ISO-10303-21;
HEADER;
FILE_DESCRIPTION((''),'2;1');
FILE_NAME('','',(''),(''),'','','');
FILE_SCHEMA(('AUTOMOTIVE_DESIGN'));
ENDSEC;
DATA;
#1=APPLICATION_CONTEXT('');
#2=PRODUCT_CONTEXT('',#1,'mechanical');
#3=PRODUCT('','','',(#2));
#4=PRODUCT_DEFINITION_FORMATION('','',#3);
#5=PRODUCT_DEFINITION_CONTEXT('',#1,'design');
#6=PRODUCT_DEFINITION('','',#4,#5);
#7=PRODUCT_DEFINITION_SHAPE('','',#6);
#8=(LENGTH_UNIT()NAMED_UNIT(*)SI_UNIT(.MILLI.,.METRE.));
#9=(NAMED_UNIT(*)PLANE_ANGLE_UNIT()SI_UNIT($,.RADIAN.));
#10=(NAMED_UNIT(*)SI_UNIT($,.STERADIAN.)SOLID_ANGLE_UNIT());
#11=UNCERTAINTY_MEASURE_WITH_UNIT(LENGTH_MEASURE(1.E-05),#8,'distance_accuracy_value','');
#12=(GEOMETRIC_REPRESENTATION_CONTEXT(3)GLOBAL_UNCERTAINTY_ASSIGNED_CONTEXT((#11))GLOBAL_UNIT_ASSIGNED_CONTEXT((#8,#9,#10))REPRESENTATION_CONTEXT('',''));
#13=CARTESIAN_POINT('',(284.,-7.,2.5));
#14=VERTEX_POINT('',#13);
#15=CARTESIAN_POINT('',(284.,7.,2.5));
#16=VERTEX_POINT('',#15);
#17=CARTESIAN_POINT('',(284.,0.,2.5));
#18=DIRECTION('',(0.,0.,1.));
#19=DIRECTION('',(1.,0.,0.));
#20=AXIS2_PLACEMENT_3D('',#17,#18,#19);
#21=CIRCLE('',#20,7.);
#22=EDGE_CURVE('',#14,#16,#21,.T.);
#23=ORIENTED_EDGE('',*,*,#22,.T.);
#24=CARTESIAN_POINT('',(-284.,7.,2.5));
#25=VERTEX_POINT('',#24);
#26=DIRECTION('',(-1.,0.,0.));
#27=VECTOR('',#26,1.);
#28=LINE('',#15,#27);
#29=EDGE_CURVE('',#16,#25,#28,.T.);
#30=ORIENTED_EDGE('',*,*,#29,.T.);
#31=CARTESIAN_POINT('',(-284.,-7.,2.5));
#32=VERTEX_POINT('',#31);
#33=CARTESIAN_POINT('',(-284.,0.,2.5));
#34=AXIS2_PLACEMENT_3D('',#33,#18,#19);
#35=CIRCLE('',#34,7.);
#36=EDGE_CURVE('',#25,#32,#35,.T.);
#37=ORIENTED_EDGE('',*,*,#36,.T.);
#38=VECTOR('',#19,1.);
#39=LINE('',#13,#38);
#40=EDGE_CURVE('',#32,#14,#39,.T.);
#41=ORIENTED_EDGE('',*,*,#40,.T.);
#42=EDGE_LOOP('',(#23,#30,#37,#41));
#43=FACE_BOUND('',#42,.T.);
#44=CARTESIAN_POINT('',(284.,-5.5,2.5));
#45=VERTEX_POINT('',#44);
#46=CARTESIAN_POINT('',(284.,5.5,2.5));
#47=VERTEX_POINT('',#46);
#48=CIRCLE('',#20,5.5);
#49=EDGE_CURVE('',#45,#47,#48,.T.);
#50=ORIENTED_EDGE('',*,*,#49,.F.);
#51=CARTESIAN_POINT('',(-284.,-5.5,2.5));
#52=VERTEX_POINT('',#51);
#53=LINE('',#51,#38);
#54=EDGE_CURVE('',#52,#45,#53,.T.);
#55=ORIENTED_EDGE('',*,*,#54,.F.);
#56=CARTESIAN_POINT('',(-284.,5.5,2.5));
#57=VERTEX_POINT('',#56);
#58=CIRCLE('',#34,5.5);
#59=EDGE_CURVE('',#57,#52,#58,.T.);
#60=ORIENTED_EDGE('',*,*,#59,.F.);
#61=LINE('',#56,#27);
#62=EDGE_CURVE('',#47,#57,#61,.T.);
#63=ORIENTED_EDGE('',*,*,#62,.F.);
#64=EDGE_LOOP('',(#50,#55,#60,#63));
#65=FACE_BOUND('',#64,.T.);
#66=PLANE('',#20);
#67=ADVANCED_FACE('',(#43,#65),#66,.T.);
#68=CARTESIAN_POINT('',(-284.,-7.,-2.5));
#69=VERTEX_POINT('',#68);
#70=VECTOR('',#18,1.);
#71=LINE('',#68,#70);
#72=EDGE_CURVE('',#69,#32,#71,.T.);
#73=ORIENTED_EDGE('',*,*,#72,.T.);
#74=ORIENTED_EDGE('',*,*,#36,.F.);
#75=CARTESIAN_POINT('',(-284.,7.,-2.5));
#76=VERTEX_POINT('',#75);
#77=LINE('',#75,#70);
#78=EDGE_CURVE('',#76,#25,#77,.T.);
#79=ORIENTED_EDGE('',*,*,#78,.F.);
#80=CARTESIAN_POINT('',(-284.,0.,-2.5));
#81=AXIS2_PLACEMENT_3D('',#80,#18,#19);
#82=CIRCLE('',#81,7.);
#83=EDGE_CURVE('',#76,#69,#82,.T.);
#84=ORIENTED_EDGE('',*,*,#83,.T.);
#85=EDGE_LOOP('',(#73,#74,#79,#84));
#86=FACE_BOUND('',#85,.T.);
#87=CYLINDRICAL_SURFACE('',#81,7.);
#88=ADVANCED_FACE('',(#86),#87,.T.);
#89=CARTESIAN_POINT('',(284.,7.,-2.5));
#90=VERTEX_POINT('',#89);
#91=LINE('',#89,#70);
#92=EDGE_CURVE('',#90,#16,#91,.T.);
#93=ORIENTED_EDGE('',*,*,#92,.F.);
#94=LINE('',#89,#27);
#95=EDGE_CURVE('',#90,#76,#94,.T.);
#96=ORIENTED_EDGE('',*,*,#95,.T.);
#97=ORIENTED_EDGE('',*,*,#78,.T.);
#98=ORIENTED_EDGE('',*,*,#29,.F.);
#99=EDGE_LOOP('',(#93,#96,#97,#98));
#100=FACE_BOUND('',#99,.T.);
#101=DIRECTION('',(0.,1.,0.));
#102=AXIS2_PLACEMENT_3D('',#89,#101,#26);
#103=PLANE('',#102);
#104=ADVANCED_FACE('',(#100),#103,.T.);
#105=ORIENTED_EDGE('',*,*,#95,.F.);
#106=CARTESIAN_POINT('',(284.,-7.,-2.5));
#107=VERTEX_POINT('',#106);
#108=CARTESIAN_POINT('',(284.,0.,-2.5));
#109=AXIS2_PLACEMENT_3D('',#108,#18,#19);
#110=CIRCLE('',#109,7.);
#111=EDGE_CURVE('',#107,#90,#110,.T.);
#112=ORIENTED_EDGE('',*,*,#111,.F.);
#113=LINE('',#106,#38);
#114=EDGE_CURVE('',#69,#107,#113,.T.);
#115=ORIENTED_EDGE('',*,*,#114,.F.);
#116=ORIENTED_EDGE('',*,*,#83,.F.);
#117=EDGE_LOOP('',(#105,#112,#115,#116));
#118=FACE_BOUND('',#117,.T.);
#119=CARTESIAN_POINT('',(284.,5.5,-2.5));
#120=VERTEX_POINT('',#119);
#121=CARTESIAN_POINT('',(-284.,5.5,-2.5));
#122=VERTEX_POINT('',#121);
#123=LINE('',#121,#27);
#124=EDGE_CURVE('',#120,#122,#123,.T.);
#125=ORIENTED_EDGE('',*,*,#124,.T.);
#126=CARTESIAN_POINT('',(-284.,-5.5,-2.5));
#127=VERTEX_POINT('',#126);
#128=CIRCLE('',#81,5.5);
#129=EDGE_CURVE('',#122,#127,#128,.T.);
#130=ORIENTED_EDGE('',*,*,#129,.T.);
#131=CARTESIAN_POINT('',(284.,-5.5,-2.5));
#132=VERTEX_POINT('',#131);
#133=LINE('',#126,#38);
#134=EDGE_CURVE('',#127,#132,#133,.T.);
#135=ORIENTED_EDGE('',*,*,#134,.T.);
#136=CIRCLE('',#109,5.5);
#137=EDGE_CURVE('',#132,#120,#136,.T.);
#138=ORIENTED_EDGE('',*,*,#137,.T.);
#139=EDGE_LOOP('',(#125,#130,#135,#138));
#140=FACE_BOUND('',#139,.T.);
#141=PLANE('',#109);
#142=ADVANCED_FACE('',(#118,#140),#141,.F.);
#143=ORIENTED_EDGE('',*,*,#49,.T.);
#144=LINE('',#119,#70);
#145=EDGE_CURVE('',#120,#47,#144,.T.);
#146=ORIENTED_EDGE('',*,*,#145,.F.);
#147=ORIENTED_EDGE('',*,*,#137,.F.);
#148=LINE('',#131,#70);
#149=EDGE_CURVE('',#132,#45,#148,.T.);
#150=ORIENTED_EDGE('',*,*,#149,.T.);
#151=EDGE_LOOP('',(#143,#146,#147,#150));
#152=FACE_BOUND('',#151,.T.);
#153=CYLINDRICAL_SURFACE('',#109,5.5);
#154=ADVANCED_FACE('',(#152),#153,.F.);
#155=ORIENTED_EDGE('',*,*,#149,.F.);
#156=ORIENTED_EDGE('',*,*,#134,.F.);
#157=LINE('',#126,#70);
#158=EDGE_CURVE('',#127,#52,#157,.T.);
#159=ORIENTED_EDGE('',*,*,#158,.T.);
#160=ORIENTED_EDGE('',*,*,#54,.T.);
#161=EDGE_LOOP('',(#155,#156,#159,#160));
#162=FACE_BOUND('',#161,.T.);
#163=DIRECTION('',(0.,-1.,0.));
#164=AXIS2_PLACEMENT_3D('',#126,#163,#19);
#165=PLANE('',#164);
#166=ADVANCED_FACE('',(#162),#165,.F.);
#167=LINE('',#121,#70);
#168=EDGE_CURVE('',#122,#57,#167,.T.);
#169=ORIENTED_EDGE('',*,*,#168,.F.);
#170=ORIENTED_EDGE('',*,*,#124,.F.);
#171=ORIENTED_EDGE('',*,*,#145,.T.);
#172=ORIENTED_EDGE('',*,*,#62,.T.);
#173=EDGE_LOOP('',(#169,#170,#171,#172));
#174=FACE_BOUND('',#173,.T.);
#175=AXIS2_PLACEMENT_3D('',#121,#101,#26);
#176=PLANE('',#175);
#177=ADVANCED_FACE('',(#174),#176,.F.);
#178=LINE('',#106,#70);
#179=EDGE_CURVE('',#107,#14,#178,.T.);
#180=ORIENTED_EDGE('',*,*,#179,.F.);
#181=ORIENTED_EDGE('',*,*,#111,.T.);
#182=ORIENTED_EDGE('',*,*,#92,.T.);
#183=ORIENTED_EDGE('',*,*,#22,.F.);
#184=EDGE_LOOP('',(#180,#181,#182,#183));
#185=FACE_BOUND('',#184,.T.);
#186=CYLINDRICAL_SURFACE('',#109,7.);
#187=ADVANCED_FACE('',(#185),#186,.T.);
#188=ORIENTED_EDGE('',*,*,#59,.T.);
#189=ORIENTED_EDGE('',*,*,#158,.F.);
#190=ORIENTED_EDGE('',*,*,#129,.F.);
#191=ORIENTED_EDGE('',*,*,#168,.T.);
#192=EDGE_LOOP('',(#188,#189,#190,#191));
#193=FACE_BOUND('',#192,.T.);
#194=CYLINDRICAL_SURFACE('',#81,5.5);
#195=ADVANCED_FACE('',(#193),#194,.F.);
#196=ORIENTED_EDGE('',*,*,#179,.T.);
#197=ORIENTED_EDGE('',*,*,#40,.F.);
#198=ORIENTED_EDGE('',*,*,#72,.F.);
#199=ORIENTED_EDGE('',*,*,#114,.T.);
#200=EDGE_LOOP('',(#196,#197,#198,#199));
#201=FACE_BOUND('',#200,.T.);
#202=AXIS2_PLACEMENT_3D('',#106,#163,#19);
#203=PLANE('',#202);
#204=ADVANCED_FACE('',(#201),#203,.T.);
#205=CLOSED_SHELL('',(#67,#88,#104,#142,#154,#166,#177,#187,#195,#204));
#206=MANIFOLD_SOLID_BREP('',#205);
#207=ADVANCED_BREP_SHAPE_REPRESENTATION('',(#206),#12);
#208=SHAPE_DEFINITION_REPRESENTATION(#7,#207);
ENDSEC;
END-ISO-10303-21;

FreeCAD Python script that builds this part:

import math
import FreeCAD as App
import Part
import Sketcher
from FreeCAD import Vector
Q = App.Units.Quantity

doc = App.newDocument("Part")
body = doc.addObject("PartDesign::Body", "Body")

# Sketch on XY plane
sketch1 = body.newObject("Sketcher::SketchObject", "Sketch")
sketch1.AttachmentSupport = (doc.getObject("XY_Plane"), [""])
sketch1.MapMode = "FlatFace"
sketch1.addGeometry([
    Part.LineSegment(Vector(-284, -7, 0), Vector(284, -7, 0)),  # 0
    Part.ArcOfCircle(Part.Circle(Vector(284, 0, 0), Vector(0, 0, 1), 7), math.radians(-90), math.radians(90)),  # 1
    Part.LineSegment(Vector(284, 7, 0), Vector(-284, 7, 0)),  # 2
    Part.ArcOfCircle(Part.Circle(Vector(-284, 0, 0), Vector(0, 0, 1), 7), math.radians(90), math.radians(270)),  # 3
    Part.LineSegment(Vector(-284, 5.5, 0), Vector(284, 5.5, 0)),  # 4
    Part.ArcOfCircle(Part.Circle(Vector(284, 0, 0), Vector(0, 0, 1), 5.5), math.radians(-90), math.radians(90)),  # 5
    Part.LineSegment(Vector(284, -5.5, 0), Vector(-284, -5.5, 0)),  # 6
    Part.ArcOfCircle(Part.Circle(Vector(-284, 0, 0), Vector(0, 0, 1), 5.5), math.radians(90), math.radians(270)),  # 7
], False)
sketch1.addConstraint([
    Sketcher.Constraint("Tangent", 0, 2, 1, 1),
    Sketcher.Constraint("Tangent", 1, 2, 2, 1),
    Sketcher.Constraint("Tangent", 2, 2, 3, 1),
    Sketcher.Constraint("Tangent", 3, 2, 0, 1),
    Sketcher.Constraint("Tangent", 4, 2, 5, 2),
    Sketcher.Constraint("Tangent", 5, 1, 6, 1),
    Sketcher.Constraint("Tangent", 6, 2, 7, 2),
    Sketcher.Constraint("Tangent", 7, 1, 4, 1),
    Sketcher.Constraint("Horizontal", 0),
    Sketcher.Constraint("Horizontal", 2),
    Sketcher.Constraint("Horizontal", 4),
    Sketcher.Constraint("Horizontal", 6),
    Sketcher.Constraint("Coincident", 5, 3, 1, 3),
    Sketcher.Constraint("Symmetric", 1, 3, 3, 3, -1, 1),
    Sketcher.Constraint("Vertical", 7, 3, 2, 2),
    Sketcher.Constraint("Radius", 1, Q("7 mm")),
    Sketcher.Constraint("Radius", 5, Q("5.5 mm")),
    Sketcher.Constraint("DistanceX", 0, 1, 0, 2, Q("568 mm")),
])
pad1 = body.newObject("PartDesign::Pad", "Pad")
pad1.Profile = sketch1
pad1.Type = "TwoLengths"
pad1.Length = 2.5
pad1.Length2 = 2.5

doc.recompute()
